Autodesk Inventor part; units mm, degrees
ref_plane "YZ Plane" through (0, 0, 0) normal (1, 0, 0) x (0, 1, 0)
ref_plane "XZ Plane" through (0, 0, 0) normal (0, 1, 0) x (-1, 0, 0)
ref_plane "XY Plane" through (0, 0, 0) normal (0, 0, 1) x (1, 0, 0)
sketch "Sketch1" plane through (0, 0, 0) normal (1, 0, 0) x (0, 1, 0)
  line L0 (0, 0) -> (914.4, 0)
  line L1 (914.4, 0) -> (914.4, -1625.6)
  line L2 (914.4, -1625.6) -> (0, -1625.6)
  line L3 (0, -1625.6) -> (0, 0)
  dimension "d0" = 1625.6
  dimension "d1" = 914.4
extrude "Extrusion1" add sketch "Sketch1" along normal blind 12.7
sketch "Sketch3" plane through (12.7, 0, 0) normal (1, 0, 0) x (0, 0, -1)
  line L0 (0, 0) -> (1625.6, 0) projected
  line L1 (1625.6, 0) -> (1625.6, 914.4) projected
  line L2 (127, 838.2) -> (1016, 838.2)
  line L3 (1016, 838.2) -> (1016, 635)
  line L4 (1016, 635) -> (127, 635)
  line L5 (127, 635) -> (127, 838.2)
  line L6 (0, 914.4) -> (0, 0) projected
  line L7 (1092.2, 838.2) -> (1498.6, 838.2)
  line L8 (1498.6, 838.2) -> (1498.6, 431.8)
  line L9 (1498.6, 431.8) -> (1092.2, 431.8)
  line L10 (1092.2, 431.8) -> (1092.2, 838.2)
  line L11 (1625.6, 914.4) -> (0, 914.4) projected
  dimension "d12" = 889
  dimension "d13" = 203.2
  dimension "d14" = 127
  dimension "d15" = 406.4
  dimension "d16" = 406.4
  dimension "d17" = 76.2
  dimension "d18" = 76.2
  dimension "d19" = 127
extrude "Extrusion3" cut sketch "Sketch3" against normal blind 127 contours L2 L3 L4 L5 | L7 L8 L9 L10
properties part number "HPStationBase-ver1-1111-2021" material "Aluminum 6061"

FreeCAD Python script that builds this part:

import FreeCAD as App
import Part
import Sketcher
from FreeCAD import Vector
Q = App.Units.Quantity

doc = App.newDocument("Part")
params = doc.addObject("Spreadsheet::Sheet", "Params")
for row, (alias, value) in enumerate([
    ("sketch1_width", "36 in"),
    ("sketch1_height", "64 in"),
    ("pad1_length", "0.5 in"),
    ("sketch2_width", "8 in"),
    ("sketch2_width2", "16 in"),
    ("sketch2_height", "35 in"),
    ("pocket1_length", "5 in"),
], start=1):
    params.set(f"A{row}", alias)
    params.set(f"B{row}", "=" + value)
    params.setAlias(f"B{row}", alias)

body = doc.addObject("PartDesign::Body", "Body")

# Sketch on YZ plane
sketch1 = body.newObject("Sketcher::SketchObject", "Sketch")
sketch1.AttachmentSupport = (doc.getObject("YZ_Plane"), [""])
sketch1.MapMode = "FlatFace"
sketch1.addGeometry([
    Part.LineSegment(Vector(914, 0, 0), Vector(0, 0, 0)),
    Part.LineSegment(Vector(0, 0, 0), Vector(0, -1626, 0)),
    Part.LineSegment(Vector(0, -1626, 0), Vector(914, -1626, 0)),
    Part.LineSegment(Vector(914, -1626, 0), Vector(914, 0, 0)),
], False)
sketch1.addConstraint([
    Sketcher.Constraint("Coincident", 0, 2, 1, 1),
    Sketcher.Constraint("Coincident", 1, 2, 2, 1),
    Sketcher.Constraint("Coincident", 2, 2, 3, 1),
    Sketcher.Constraint("Coincident", 3, 2, 0, 1),
    Sketcher.Constraint("Horizontal", 0),
    Sketcher.Constraint("Vertical", 1),
    Sketcher.Constraint("Horizontal", 2),
    Sketcher.Constraint("Vertical", 3),
    Sketcher.Constraint("Coincident", 0, 2, -1, 1),
    Sketcher.Constraint("DistanceX", 0, 2, 0, 1, Q("36 in")),
    Sketcher.Constraint("DistanceY", 1, 2, 1, 1, Q("64 in")),
])
sketch1.setExpression("Constraints[9]", "Params.sketch1_width")
sketch1.setExpression("Constraints[10]", "Params.sketch1_height")
pad1 = body.newObject("PartDesign::Pad", "Pad")
pad1.Profile = sketch1
pad1.setExpression("Length", "Params.pad1_length")

# Sketch on YZ plane
sketch2 = body.newObject("Sketcher::SketchObject", "Sketch001")
sketch2.AttachmentSupport = (doc.getObject("YZ_Plane"), [""])
sketch2.MapMode = "FlatFace"
sketch2.AttachmentOffset = App.Placement(Vector(0, 0, 0.5 * 25.4), App.Rotation())
sketch2.addGeometry([
    Part.LineSegment(Vector(838, -1016, 0), Vector(838, -127, 0)),  # 0
    Part.LineSegment(Vector(838, -127, 0), Vector(635, -127, 0)),  # 1
    Part.LineSegment(Vector(635, -127, 0), Vector(635, -1016, 0)),  # 2
    Part.LineSegment(Vector(635, -1016, 0), Vector(838, -1016, 0)),  # 3
    Part.LineSegment(Vector(838, -1499, 0), Vector(838, -1092, 0)),  # 4
    Part.LineSegment(Vector(838, -1092, 0), Vector(432, -1092, 0)),  # 5
    Part.LineSegment(Vector(432, -1092, 0), Vector(432, -1499, 0)),  # 6
    Part.LineSegment(Vector(432, -1499, 0), Vector(838, -1499, 0)),  # 7
], False)
sketch2.addConstraint([
    Sketcher.Constraint("Coincident", 0, 2, 1, 1),
    Sketcher.Constraint("Coincident", 1, 2, 2, 1),
    Sketcher.Constraint("Coincident", 2, 2, 3, 1),
    Sketcher.Constraint("Coincident", 3, 2, 0, 1),
    Sketcher.Constraint("Coincident", 4, 2, 5, 1),
    Sketcher.Constraint("Coincident", 5, 2, 6, 1),
    Sketcher.Constraint("Coincident", 6, 2, 7, 1),
    Sketcher.Constraint("Coincident", 7, 2, 4, 1),
    Sketcher.Constraint("Vertical", 0),
    Sketcher.Constraint("Horizontal", 1),
    Sketcher.Constraint("Vertical", 2),
    Sketcher.Constraint("Horizontal", 3),
    Sketcher.Constraint("Vertical", 4),
    Sketcher.Constraint("Horizontal", 5),
    Sketcher.Constraint("Vertical", 6),
    Sketcher.Constraint("Horizontal", 7),
    Sketcher.Constraint("Vertical", 3, 2, 4, 2),
    Sketcher.Constraint("Equal", 7, 4),
    Sketcher.Constraint("DistanceX", 1, 2, 1, 1, Q("8 in")),
    Sketcher.Constraint("DistanceX", 5, 2, 5, 1, Q("16 in")),
    Sketcher.Constraint("DistanceY", 0, 1, 0, 2, Q("35 in")),
    Sketcher.Constraint("DistanceY", 0, 2, -1, 1, Q("5 in")),
    Sketcher.Constraint("DistanceY", 4, 2, 3, 2, Q("3 in")),
    Sketcher.Constraint("DistanceX", -1, 1, 0, 2, Q("33 in")),
])
sketch2.setExpression("Constraints[18]", "Params.sketch2_width")
sketch2.setExpression("Constraints[19]", "Params.sketch2_width2")
sketch2.setExpression("Constraints[20]", "Params.sketch2_height")
pocket1 = body.newObject("PartDesign::Pocket", "Pocket")
pocket1.Profile = sketch2
pocket1.setExpression("Length", "Params.pocket1_length")

doc.recompute()
